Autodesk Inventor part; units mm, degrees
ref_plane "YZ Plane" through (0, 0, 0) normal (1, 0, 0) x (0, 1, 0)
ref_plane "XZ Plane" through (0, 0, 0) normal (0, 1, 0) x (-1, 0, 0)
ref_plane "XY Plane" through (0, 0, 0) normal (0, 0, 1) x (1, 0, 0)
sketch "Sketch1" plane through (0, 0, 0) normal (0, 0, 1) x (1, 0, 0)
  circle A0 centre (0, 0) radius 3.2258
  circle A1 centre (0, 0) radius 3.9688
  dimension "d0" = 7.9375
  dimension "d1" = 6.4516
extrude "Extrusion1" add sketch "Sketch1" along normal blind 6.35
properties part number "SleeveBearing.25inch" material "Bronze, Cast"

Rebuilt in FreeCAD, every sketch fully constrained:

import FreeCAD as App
import Part
import Sketcher
from FreeCAD import Vector
Q = App.Units.Quantity

doc = App.newDocument("Part")
body = doc.addObject("PartDesign::Body", "Body")

# Sketch on XY plane
sketch1 = doc.addObject("Sketcher::SketchObject", "Sketch")
body.addObject(sketch1)
sketch1.AttachmentSupport = (doc.XY_Plane, [""])
sketch1.MapMode = "FlatFace"
sketch1.addGeometry([
    Part.Circle(Vector(0, 0, 0), Vector(0, 0, 1), 4),
    Part.Circle(Vector(0, 0, 0), Vector(0, 0, 1), 3.2),
], False)
sketch1.addConstraint([
    Sketcher.Constraint("Coincident", 0, 3, -1, 1),
    Sketcher.Constraint("Coincident", 1, 3, -1, 1),
    Sketcher.Constraint("Diameter", 0, Q("0.3125 in")),
    Sketcher.Constraint("Diameter", 1, Q("0.254 in")),
])
pad1 = doc.addObject("PartDesign::Pad", "Pad")
body.addObject(pad1)
pad1.Profile = sketch1
pad1.Length = Q("0.25 in")

doc.recompute()
